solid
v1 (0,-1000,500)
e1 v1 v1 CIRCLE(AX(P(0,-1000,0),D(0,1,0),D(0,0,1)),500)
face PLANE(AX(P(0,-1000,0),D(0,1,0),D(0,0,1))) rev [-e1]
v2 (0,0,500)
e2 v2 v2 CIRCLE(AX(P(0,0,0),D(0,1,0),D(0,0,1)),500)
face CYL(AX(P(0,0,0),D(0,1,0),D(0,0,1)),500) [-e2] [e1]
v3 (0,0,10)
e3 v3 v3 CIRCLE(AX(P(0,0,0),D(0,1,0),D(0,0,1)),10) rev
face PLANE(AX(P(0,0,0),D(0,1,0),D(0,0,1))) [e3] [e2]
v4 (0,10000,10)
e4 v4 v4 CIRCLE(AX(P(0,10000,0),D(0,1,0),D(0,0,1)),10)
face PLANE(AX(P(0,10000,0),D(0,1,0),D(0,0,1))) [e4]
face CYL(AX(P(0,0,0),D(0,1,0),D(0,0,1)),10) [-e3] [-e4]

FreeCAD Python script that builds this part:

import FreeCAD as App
import Part
import Sketcher
Q = App.Units.Quantity

doc = App.newDocument("Part")
body = doc.addObject("PartDesign::Body", "Body")

# Sketch on XY plane
sketch1 = doc.addObject("Sketcher::SketchObject", "Sketch")
body.addObject(sketch1)
sketch1.AttachmentSupport = (doc.XY_Plane, [""])
sketch1.MapMode = "FlatFace"
sketch1.addGeometry(Part.LineSegment(App.Vector(-500, 0, 0), App.Vector(-500, -1000, 0)), False)
sketch1.addGeometry(Part.LineSegment(App.Vector(-500, -1000, 0), App.Vector(0, -1000, 0)), False)
sketch1.addGeometry(Part.LineSegment(App.Vector(0, -1000, 0), App.Vector(0, 10000, 0)), False)
sketch1.addGeometry(Part.LineSegment(App.Vector(0, 10000, 0), App.Vector(-10, 10000, 0)), False)
sketch1.addGeometry(Part.LineSegment(App.Vector(-10, 10000, 0), App.Vector(-10, 0, 0)), False)
sketch1.addGeometry(Part.LineSegment(App.Vector(-10, 0, 0), App.Vector(-500, 0, 0)), False)
sketch1.addConstraint(Sketcher.Constraint("Coincident", 0, 2, 1, 1))
sketch1.addConstraint(Sketcher.Constraint("Coincident", 1, 2, 2, 1))
sketch1.addConstraint(Sketcher.Constraint("Coincident", 2, 2, 3, 1))
sketch1.addConstraint(Sketcher.Constraint("Coincident", 3, 2, 4, 1))
sketch1.addConstraint(Sketcher.Constraint("Coincident", 4, 2, 5, 1))
sketch1.addConstraint(Sketcher.Constraint("Coincident", 5, 2, 0, 1))
sketch1.addConstraint(Sketcher.Constraint("Vertical", 0))
sketch1.addConstraint(Sketcher.Constraint("Horizontal", 1))
sketch1.addConstraint(Sketcher.Constraint("Vertical", 2))
sketch1.addConstraint(Sketcher.Constraint("Horizontal", 3))
sketch1.addConstraint(Sketcher.Constraint("Vertical", 4))
sketch1.addConstraint(Sketcher.Constraint("Horizontal", 5))
sketch1.addConstraint(Sketcher.Constraint("PointOnObject", 1, 2, -2))
sketch1.addConstraint(Sketcher.Constraint("PointOnObject", 4, 2, -1))
sketch1.addConstraint(Sketcher.Constraint("DistanceX", 1, 1, 1, 2, Q("500 mm")))
sketch1.addConstraint(Sketcher.Constraint("DistanceX", 3, 2, 3, 1, Q("10 mm")))
sketch1.addConstraint(Sketcher.Constraint("DistanceY", 0, 2, 0, 1, Q("1000 mm")))
sketch1.addConstraint(Sketcher.Constraint("DistanceY", 2, 1, 2, 2, Q("11000 mm")))
revolution = doc.addObject("PartDesign::Revolution", "Revolution")
body.addObject(revolution)
revolution.Profile = sketch1
revolution.ReferenceAxis = (sketch1, ["V_Axis"])
revolution.Angle = 360

doc.recompute()
